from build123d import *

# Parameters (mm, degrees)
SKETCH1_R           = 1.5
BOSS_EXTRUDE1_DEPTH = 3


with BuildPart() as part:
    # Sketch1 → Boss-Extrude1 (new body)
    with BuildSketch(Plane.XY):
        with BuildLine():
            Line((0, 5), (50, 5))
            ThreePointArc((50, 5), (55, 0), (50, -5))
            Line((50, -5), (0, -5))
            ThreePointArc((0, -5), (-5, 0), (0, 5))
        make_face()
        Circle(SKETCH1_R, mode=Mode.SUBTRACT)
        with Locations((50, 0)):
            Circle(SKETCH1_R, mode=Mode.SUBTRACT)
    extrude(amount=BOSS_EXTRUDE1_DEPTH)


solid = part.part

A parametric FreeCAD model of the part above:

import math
import FreeCAD as App
import Part
import Sketcher

V = App.Vector

doc = App.newDocument("Part")
body = doc.addObject("PartDesign::Body", "Body")

sketch1 = doc.addObject("Sketcher::SketchObject", "Sketch")
body.addObject(sketch1)
sketch1.AttachmentSupport = (doc.XY_Plane, [""])
sketch1.MapMode = "FlatFace"
sketch1.addGeometry(Part.LineSegment(V(50, 5, 0), V(0, 5, 0)), False)
sketch1.addGeometry(Part.ArcOfCircle(Part.Circle(V(0, 0, 0), V(0, 0, 1), 5), math.radians(90), math.radians(270)), False)
sketch1.addGeometry(Part.LineSegment(V(0, -5, 0), V(50, -5, 0)), False)
sketch1.addGeometry(Part.ArcOfCircle(Part.Circle(V(50, 0, 0), V(0, 0, 1), 5), math.radians(-90), math.radians(90)), False)
sketch1.addGeometry(Part.Circle(V(50, 0, 0), V(0, 0, 1), 1.5), False)
sketch1.addGeometry(Part.Circle(V(0, 0, 0), V(0, 0, 1), 1.5), False)
sketch1.addConstraint(Sketcher.Constraint("Tangent", 0, 2, 1, 1))
sketch1.addConstraint(Sketcher.Constraint("Tangent", 1, 2, 2, 1))
sketch1.addConstraint(Sketcher.Constraint("Tangent", 2, 2, 3, 1))
sketch1.addConstraint(Sketcher.Constraint("Tangent", 3, 2, 0, 1))
sketch1.addConstraint(Sketcher.Constraint("Horizontal", 0))
sketch1.addConstraint(Sketcher.Constraint("Horizontal", 2))
sketch1.addConstraint(Sketcher.Constraint("Coincident", 1, 3, -1, 1))
sketch1.addConstraint(Sketcher.Constraint("Coincident", 5, 3, -1, 1))
sketch1.addConstraint(Sketcher.Constraint("Coincident", 4, 3, 3, 3))
sketch1.addConstraint(Sketcher.Constraint("Equal", 4, 5))
sketch1.addConstraint(Sketcher.Constraint("Diameter", 4, 3.0))
sketch1.addConstraint(Sketcher.Constraint("Radius", 1, 5.0))
sketch1.addConstraint(Sketcher.Constraint("DistanceX", 0, 2, 0, 1, 50.0))
pad1 = doc.addObject("PartDesign::Pad", "Pad")
body.addObject(pad1)
pad1.Profile = sketch1
pad1.Length = 3

doc.recompute()
